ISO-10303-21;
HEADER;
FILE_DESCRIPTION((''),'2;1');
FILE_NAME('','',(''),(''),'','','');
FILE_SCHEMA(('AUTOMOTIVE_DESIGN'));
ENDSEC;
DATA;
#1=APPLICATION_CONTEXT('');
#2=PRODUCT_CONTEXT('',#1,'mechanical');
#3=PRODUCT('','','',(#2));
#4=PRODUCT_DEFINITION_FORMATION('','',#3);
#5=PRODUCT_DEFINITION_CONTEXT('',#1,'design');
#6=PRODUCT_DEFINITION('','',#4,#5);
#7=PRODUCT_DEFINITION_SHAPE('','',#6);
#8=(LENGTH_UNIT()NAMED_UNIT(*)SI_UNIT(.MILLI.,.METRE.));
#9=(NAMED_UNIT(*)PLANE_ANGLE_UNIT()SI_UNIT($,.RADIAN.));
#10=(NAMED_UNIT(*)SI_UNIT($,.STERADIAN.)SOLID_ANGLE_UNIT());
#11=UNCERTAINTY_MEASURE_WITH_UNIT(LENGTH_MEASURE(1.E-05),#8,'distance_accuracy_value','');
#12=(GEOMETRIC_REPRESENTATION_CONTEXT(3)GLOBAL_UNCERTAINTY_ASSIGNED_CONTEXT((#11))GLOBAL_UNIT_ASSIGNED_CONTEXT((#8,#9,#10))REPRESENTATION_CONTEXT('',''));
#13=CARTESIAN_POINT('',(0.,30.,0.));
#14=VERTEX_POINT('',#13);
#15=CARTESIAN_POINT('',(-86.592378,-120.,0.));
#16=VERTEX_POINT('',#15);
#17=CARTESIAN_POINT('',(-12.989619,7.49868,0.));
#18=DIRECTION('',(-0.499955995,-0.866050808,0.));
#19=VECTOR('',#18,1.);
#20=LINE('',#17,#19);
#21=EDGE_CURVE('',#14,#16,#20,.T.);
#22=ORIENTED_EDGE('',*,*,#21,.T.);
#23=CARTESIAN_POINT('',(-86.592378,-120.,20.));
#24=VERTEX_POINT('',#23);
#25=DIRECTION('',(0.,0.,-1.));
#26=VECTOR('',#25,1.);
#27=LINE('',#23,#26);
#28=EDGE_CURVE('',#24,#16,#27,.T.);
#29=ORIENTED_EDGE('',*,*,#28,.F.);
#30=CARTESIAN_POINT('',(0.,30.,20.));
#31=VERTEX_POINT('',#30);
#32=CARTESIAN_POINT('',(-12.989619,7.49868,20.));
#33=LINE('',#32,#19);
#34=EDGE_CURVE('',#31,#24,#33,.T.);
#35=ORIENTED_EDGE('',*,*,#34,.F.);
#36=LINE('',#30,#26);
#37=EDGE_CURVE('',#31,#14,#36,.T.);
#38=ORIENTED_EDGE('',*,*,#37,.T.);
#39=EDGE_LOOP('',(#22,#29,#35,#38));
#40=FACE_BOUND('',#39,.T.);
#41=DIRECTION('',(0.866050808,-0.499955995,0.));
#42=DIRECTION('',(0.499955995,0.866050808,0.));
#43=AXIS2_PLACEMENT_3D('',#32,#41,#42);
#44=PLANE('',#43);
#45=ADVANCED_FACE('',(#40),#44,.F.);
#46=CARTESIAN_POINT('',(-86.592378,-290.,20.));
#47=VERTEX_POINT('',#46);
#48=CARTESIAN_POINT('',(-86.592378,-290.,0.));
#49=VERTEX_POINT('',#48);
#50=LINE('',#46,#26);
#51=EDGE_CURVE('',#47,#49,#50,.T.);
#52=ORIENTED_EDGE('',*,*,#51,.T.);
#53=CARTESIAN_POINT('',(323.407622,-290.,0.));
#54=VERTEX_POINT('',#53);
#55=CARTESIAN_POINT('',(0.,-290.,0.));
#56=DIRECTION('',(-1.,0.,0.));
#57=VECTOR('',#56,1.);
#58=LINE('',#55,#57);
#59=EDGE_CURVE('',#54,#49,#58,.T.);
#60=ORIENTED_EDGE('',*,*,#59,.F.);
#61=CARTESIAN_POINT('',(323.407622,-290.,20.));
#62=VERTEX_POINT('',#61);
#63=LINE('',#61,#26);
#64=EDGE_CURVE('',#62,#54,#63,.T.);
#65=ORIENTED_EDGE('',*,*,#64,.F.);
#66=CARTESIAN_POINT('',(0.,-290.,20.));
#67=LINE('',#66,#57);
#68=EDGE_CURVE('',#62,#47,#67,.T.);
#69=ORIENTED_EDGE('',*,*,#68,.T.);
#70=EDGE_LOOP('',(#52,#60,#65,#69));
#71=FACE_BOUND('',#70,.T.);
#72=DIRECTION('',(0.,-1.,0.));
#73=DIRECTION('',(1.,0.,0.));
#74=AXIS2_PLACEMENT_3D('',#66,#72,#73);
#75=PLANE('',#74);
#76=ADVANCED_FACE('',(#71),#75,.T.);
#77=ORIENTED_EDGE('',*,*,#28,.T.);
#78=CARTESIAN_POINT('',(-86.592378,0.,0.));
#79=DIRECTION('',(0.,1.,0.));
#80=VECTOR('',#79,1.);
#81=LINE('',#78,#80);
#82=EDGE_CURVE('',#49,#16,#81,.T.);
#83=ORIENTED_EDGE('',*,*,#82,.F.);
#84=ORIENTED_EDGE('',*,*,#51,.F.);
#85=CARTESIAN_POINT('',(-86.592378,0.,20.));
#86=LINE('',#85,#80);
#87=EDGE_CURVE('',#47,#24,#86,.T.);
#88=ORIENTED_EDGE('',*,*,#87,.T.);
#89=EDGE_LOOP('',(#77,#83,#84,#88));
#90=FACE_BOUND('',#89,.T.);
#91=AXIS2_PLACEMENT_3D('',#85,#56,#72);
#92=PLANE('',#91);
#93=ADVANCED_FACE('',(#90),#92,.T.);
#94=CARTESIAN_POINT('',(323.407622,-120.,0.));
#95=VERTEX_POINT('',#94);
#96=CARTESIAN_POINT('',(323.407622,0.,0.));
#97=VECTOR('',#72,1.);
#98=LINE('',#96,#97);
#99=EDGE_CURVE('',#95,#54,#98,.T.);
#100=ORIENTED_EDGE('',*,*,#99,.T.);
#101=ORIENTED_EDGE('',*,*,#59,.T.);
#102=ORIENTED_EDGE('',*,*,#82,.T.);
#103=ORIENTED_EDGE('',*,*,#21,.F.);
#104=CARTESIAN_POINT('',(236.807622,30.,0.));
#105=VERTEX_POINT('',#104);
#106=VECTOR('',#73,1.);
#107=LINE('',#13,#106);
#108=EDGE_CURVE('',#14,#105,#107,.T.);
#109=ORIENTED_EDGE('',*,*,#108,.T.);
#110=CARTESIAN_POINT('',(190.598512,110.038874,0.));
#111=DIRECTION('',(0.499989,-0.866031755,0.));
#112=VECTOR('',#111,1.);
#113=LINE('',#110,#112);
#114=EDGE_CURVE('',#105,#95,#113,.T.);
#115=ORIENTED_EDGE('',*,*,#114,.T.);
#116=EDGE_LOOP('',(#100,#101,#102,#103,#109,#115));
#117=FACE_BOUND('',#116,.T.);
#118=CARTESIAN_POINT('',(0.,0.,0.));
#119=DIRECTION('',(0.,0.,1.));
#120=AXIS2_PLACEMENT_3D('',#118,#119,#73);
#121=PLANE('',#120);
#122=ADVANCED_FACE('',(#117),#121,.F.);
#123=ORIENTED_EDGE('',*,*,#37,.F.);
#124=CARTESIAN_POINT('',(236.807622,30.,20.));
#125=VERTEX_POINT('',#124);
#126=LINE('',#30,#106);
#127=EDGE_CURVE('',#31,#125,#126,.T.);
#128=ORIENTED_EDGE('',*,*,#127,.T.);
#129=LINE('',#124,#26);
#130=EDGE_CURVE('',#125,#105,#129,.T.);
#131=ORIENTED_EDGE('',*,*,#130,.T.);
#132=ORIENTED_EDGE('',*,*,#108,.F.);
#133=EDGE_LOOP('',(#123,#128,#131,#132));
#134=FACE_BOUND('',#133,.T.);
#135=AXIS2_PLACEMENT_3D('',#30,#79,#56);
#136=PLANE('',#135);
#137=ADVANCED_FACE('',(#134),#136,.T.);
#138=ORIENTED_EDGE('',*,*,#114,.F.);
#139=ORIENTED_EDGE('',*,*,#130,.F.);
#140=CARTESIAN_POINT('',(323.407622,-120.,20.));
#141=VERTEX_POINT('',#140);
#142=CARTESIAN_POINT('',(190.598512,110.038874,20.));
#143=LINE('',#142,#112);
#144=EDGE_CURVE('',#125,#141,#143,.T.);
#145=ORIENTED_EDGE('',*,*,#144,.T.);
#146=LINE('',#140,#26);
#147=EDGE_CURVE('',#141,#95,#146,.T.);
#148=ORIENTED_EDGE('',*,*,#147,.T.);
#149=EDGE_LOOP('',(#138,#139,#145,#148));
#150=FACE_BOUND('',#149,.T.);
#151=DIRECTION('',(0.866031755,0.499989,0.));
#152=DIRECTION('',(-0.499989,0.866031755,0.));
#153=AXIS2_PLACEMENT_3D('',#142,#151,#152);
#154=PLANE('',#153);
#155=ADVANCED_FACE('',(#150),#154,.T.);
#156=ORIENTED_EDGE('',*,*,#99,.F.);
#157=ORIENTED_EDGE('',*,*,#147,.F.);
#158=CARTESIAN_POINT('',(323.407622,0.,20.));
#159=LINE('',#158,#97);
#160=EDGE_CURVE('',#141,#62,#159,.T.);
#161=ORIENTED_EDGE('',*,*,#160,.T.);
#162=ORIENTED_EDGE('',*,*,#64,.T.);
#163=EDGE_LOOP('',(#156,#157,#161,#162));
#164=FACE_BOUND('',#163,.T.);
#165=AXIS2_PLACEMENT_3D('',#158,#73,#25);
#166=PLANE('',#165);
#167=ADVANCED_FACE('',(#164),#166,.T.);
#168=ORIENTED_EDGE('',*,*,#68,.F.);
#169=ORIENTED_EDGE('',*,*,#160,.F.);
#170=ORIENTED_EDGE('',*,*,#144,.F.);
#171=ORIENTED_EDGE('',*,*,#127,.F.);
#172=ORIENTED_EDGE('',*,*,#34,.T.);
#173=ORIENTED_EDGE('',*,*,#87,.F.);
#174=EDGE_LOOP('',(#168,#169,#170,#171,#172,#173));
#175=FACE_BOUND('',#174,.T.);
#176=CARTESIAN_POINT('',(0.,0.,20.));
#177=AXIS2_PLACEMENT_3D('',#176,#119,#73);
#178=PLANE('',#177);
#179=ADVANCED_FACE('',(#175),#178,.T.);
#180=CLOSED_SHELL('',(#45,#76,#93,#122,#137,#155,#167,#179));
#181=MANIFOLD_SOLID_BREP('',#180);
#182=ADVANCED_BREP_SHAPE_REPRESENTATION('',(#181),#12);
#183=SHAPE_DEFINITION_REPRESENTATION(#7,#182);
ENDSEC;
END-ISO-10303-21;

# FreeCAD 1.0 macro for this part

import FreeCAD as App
import Part
import Sketcher
from FreeCAD import Vector


def add_polygon(sketch, points):
    """Adds a closed chain of lines whose ends are joined by coincident constraints."""
    first, n = sketch.GeometryCount, len(points)
    for a, b in zip(points, points[1:] + points[:1]):
        sketch.addGeometry(Part.LineSegment(App.Vector(*a, 0), App.Vector(*b, 0)), False)
    for i in range(n):
        sketch.addConstraint(Sketcher.Constraint("Coincident", first + i, 2, first + (i + 1) % n, 1))

doc = App.newDocument("Part")
body = doc.addObject("PartDesign::Body", "Body")

# Sketch on XY plane
sketch1 = body.newObject("Sketcher::SketchObject", "Sketch")
sketch1.AttachmentSupport = (doc.getObject("XY_Plane"), [""])
sketch1.MapMode = "FlatFace"
add_polygon(sketch1, [(236.807622, 30), (0, 30), (-86.592378, -120), (-86.592378, -290), (323.407622, -290), (323.407622, -120)])  # lines 0-5
sketch1.addConstraint([
    Sketcher.Constraint("Horizontal", 0),
    Sketcher.Constraint("Vertical", 2),
    Sketcher.Constraint("Horizontal", 3),
    Sketcher.Constraint("Vertical", 4),
    Sketcher.Constraint("PointOnObject", 0, 2, -2),
    Sketcher.Constraint("Horizontal", 1, 2, 4, 2),
    Sketcher.Constraint("DistanceX", 3, 1, 3, 2, 410.0),
    Sketcher.Constraint("DistanceY", 2, 2, 2, 1, 170.0),
    Sketcher.Constraint("DistanceY", -1, 1, 0, 2, 30.0),
    Sketcher.Constraint("DistanceY", 1, 2, -1, 1, 120.0),
    Sketcher.Constraint("Distance", 1, 173.2),
    Sketcher.Constraint("DistanceX", 5, 2, 4, 2, 86.6),
])
pad1 = body.newObject("PartDesign::Pad", "Pad")
pad1.Profile = sketch1
pad1.Length = 20

doc.recompute()
